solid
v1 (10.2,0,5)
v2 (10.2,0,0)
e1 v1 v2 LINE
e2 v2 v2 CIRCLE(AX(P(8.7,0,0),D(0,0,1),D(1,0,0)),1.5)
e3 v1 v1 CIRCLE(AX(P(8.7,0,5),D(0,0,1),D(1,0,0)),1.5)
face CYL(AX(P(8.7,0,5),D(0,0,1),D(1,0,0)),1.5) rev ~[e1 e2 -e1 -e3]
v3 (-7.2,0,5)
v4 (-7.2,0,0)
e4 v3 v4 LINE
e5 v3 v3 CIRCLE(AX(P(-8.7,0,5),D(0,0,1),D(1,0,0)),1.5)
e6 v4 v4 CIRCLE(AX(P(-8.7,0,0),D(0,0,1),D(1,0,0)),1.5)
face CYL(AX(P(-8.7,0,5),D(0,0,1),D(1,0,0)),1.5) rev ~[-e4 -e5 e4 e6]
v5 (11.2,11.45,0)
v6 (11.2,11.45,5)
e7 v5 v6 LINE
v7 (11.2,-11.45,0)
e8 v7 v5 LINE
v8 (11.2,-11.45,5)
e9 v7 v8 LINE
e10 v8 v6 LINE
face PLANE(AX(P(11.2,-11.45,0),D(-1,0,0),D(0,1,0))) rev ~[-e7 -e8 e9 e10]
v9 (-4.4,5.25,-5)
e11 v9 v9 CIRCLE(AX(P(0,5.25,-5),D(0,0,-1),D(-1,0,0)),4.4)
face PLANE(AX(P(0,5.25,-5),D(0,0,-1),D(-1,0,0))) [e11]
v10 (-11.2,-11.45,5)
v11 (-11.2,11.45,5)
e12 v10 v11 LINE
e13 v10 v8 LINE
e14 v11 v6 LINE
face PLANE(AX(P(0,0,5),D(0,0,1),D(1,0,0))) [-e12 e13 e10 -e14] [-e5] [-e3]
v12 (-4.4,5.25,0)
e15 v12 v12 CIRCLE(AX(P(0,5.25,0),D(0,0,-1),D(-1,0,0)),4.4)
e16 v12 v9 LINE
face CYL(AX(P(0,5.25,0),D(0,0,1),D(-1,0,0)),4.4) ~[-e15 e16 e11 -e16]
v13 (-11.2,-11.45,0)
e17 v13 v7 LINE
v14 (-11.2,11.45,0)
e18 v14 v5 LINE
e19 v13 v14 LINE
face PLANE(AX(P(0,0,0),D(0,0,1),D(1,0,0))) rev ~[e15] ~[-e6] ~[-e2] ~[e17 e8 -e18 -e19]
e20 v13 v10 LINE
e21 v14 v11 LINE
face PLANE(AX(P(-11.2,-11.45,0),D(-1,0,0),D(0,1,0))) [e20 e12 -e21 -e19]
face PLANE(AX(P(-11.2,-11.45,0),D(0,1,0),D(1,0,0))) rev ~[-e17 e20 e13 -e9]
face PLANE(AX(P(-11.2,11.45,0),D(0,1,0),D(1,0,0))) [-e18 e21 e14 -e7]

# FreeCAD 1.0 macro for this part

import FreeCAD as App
import Part
import Sketcher
Q = App.Units.Quantity

doc = App.newDocument("Part")
body = doc.addObject("PartDesign::Body", "Body")

sketch1 = body.newObject("Sketcher::SketchObject", "Sketch")
sketch1.AttachmentSupport = (doc.getObject("XY_Plane"), [""])
sketch1.MapMode = "FlatFace"
sketch1.addGeometry([
    Part.LineSegment(App.Vector(-11, 11, 0), App.Vector(-11, -11, 0)),
    Part.LineSegment(App.Vector(-11, -11, 0), App.Vector(11, -11, 0)),
    Part.LineSegment(App.Vector(11, -11, 0), App.Vector(11, 11, 0)),
    Part.LineSegment(App.Vector(11, 11, 0), App.Vector(-11, 11, 0)),
], False)
sketch1.addConstraint([
    Sketcher.Constraint("Coincident", 0, 2, 1, 1),
    Sketcher.Constraint("Coincident", 1, 2, 2, 1),
    Sketcher.Constraint("Coincident", 2, 2, 3, 1),
    Sketcher.Constraint("Coincident", 3, 2, 0, 1),
    Sketcher.Constraint("Vertical", 0),
    Sketcher.Constraint("Horizontal", 1),
    Sketcher.Constraint("Vertical", 2),
    Sketcher.Constraint("Horizontal", 3),
    Sketcher.Constraint("Symmetric", 0, 2, 2, 2, -1, 1),
    Sketcher.Constraint("DistanceX", 1, 1, 1, 2, Q("22.4 mm")),
    Sketcher.Constraint("DistanceY", 0, 2, 0, 1, Q("22.9 mm")),
])
pad1 = body.newObject("PartDesign::Pad", "Pad")
pad1.Profile = sketch1
pad1.Length = 5

sketch2 = body.newObject("Sketcher::SketchObject", "Sketch001")
sketch2.AttachmentSupport = (doc.getObject("XY_Plane"), [""])
sketch2.MapMode = "FlatFace"
sketch2.AttachmentOffset = App.Placement(App.Vector(0, 0, 5), App.Rotation())
sketch2.addGeometry([
    Part.Circle(App.Vector(-8.7, 0, 0), App.Vector(0, 0, 1), 1.5),
    Part.Circle(App.Vector(8.7, 0, 0), App.Vector(0, 0, 1), 1.5),
], False)
sketch2.addConstraint([
    Sketcher.Constraint("Equal", 0, 1),
    Sketcher.Constraint("Symmetric", 0, 3, 1, 3, -1, 1),
    Sketcher.Constraint("PointOnObject", 0, 3, -1),
    Sketcher.Constraint("Diameter", 0, Q("3 mm")),
    Sketcher.Constraint("DistanceX", 0, 3, -1, 1, Q("8.7 mm")),
])
pocket1 = body.newObject("PartDesign::Pocket", "Pocket")
pocket1.Profile = sketch2
pocket1.Length = 5

sketch3 = body.newObject("Sketcher::SketchObject", "Sketch002")
sketch3.AttachmentSupport = (doc.getObject("XY_Plane"), [""])
sketch3.MapMode = "FlatFace"
sketch3.addGeometry(Part.Circle(App.Vector(0, 5.2, 0), App.Vector(0, 0, 1), 4.4), False)
sketch3.addConstraint([
    Sketcher.Constraint("PointOnObject", 0, 3, -2),
    Sketcher.Constraint("Diameter", 0, Q("8.8 mm")),
    Sketcher.Constraint("DistanceY", -1, 1, 0, 3, Q("5.25 mm")),
])
pad2 = body.newObject("PartDesign::Pad", "Pad001")
pad2.Profile = sketch3
pad2.Length = 5
pad2.Reversed = True

doc.recompute()
